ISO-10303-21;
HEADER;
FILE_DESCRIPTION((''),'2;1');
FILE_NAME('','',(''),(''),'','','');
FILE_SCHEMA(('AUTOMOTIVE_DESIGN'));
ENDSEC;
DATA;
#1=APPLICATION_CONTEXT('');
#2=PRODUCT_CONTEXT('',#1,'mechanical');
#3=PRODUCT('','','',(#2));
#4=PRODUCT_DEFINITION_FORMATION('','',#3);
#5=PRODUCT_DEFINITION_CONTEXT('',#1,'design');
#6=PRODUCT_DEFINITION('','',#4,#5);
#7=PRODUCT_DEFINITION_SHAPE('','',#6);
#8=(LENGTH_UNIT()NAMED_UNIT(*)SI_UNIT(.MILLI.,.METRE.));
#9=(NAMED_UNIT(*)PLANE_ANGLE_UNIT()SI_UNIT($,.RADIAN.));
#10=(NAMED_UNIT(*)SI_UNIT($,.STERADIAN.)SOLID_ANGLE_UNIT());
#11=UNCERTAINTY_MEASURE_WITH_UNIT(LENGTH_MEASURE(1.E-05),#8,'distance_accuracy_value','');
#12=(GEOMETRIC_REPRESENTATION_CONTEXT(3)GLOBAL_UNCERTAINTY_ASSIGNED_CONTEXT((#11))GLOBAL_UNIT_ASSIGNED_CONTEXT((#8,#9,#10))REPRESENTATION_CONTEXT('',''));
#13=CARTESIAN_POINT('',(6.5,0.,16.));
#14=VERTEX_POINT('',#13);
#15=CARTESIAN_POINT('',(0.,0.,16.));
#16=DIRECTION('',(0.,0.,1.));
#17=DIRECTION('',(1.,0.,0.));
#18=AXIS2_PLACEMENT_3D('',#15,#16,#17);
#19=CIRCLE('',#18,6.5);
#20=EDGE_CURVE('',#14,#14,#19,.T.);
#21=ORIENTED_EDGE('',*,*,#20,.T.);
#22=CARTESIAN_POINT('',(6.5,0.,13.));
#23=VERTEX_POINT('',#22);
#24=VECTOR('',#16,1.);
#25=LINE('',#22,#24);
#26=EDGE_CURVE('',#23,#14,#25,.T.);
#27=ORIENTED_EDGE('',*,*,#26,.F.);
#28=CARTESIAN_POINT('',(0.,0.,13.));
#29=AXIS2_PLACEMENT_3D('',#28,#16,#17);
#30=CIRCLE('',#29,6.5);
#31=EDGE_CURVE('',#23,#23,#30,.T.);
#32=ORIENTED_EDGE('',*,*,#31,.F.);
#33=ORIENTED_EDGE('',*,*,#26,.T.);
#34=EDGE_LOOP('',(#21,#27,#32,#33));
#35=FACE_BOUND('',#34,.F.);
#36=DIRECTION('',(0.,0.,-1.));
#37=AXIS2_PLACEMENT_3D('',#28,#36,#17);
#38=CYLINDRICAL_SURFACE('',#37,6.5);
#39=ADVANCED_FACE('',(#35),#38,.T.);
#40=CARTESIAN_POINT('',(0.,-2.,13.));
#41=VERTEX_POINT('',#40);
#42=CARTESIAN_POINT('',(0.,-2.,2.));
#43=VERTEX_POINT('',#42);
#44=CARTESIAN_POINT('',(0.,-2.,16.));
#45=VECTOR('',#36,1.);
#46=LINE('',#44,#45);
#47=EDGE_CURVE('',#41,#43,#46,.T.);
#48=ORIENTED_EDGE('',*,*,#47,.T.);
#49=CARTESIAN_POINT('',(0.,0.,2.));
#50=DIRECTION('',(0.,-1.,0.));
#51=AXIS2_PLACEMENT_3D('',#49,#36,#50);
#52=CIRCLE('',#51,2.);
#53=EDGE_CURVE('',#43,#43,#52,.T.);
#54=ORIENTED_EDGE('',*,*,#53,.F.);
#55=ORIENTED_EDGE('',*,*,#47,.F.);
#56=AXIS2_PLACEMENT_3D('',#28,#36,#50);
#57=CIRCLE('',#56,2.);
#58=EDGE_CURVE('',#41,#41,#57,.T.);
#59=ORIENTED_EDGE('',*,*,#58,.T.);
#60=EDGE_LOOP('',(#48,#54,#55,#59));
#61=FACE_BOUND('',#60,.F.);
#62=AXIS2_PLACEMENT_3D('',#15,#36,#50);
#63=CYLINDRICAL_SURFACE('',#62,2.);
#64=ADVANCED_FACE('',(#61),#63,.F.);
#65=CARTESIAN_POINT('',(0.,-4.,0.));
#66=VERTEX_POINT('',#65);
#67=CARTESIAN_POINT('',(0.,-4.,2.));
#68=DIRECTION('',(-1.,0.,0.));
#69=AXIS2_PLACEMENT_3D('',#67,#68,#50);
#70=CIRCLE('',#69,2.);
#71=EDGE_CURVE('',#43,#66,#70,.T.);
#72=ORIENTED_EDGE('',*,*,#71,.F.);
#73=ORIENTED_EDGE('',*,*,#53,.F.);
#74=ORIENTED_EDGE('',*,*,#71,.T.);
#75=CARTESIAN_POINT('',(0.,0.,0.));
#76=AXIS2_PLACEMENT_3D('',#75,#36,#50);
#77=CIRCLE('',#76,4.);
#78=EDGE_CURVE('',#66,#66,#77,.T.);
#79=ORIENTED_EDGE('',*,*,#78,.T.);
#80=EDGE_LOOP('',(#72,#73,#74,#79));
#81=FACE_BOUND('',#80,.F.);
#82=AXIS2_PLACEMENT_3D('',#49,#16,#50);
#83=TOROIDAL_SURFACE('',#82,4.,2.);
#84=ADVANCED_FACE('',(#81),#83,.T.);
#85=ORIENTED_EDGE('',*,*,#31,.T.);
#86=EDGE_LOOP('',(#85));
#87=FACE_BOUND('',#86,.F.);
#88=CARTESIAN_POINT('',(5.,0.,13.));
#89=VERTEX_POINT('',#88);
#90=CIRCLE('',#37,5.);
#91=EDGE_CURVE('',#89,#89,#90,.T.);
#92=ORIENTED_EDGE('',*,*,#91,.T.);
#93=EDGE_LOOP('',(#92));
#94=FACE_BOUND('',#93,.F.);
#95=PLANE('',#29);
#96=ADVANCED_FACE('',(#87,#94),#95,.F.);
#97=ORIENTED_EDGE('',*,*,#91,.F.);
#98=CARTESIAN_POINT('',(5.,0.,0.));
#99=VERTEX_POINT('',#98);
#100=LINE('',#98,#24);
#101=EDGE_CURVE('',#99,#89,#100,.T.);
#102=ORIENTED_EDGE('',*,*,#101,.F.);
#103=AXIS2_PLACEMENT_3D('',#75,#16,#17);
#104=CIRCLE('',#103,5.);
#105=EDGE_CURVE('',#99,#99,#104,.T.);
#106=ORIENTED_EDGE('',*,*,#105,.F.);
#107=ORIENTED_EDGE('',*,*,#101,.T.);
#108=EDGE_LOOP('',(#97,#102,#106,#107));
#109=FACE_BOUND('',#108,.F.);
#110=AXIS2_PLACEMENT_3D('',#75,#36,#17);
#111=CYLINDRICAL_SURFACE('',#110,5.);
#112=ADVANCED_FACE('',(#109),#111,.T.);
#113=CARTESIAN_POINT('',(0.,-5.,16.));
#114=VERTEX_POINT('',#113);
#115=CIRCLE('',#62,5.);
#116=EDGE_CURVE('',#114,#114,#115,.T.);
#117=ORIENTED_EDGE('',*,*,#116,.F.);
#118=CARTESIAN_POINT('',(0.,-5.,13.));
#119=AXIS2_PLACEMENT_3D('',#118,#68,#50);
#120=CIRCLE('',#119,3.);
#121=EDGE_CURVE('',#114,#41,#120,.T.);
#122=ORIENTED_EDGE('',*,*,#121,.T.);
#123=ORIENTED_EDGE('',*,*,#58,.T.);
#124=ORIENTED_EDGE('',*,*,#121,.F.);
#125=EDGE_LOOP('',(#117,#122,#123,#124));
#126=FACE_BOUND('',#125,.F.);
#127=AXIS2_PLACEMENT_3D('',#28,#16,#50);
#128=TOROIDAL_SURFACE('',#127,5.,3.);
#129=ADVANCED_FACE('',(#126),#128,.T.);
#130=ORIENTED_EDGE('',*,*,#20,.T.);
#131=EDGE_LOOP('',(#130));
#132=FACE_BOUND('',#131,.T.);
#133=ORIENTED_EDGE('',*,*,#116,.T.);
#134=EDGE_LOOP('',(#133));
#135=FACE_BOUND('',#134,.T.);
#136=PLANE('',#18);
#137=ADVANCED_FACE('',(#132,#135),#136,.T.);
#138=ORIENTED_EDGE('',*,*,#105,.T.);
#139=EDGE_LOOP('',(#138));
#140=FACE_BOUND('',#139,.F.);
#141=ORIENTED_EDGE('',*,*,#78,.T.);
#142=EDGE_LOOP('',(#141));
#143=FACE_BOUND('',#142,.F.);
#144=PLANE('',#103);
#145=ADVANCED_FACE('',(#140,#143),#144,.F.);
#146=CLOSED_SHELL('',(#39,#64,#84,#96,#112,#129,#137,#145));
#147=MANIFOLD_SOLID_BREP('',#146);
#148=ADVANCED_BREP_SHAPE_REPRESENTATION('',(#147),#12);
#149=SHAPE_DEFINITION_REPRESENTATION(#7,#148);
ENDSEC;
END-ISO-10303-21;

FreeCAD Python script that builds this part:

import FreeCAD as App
import Part
import Sketcher
from FreeCAD import Vector
Q = App.Units.Quantity


def edges_at(feature, points):
    """Names of the edges that pass closest to the given points."""
    edges = feature.Shape.Edges
    near = lambda p: min(range(len(edges)), key=lambda i: edges[i].distToShape(Part.Vertex(*p))[0])
    return sorted({f"Edge{near(p) + 1}" for p in points})

doc = App.newDocument("Part")
body = doc.addObject("PartDesign::Body", "Body")

# Sketch on XY plane
sketch1 = body.newObject("Sketcher::SketchObject", "Sketch")
sketch1.AttachmentSupport = (doc.getObject("XY_Plane"), [""])
sketch1.MapMode = "FlatFace"
sketch1.addGeometry(Part.Circle(Vector(0, 0, 0), Vector(0, 0, 1), 5), False)
sketch1.addConstraint([
    Sketcher.Constraint("Coincident", 0, 3, -1, 1),
    Sketcher.Constraint("Diameter", 0, Q("10 mm")),
])
pad1 = body.newObject("PartDesign::Pad", "Pad")
pad1.Profile = sketch1
pad1.Length = 13

# Sketch on XY plane
sketch2 = body.newObject("Sketcher::SketchObject", "Sketch001")
sketch2.AttachmentSupport = (doc.getObject("XY_Plane"), [""])
sketch2.MapMode = "FlatFace"
sketch2.AttachmentOffset = App.Placement(Vector(0, 0, 13), App.Rotation())
sketch2.addGeometry(Part.Circle(Vector(0, 0, 0), Vector(0, 0, 1), 6), False)
sketch2.addConstraint([
    Sketcher.Constraint("Coincident", 0, 3, -1, 1),
    Sketcher.Constraint("Diameter", 0, Q("13 mm")),
])
pad2 = body.newObject("PartDesign::Pad", "Pad001")
pad2.Profile = sketch2
pad2.Length = 3

# Sketch on XY plane
sketch3 = body.newObject("Sketcher::SketchObject", "Sketch002")
sketch3.AttachmentSupport = (doc.getObject("XY_Plane"), [""])
sketch3.MapMode = "FlatFace"
sketch3.AttachmentOffset = App.Placement(Vector(0, 0, 16), App.Rotation())
sketch3.addGeometry(Part.Circle(Vector(0, 0, 0), Vector(0, 0, 1), 2), False)
sketch3.addConstraint([
    Sketcher.Constraint("Coincident", 0, 3, -1, 1),
    Sketcher.Constraint("Diameter", 0, Q("4 mm")),
])
doc.recompute()
hole = body.newObject("PartDesign::Hole", "Hole")
hole.Profile = sketch3
hole.ThreadType = "None"
hole.Diameter = 4
hole.DepthType = "ThroughAll"
doc.recompute()

fillet = body.newObject("PartDesign::Fillet", "Fillet")
fillet.Base = (hole, edges_at(hole, [(0, 2, 16)]))
fillet.Radius = 3
doc.recompute()

fillet2 = body.newObject("PartDesign::Fillet", "Fillet001")
fillet2.Base = (fillet, edges_at(fillet, [(0, 2, 0)]))
fillet2.Radius = 2

doc.recompute()
